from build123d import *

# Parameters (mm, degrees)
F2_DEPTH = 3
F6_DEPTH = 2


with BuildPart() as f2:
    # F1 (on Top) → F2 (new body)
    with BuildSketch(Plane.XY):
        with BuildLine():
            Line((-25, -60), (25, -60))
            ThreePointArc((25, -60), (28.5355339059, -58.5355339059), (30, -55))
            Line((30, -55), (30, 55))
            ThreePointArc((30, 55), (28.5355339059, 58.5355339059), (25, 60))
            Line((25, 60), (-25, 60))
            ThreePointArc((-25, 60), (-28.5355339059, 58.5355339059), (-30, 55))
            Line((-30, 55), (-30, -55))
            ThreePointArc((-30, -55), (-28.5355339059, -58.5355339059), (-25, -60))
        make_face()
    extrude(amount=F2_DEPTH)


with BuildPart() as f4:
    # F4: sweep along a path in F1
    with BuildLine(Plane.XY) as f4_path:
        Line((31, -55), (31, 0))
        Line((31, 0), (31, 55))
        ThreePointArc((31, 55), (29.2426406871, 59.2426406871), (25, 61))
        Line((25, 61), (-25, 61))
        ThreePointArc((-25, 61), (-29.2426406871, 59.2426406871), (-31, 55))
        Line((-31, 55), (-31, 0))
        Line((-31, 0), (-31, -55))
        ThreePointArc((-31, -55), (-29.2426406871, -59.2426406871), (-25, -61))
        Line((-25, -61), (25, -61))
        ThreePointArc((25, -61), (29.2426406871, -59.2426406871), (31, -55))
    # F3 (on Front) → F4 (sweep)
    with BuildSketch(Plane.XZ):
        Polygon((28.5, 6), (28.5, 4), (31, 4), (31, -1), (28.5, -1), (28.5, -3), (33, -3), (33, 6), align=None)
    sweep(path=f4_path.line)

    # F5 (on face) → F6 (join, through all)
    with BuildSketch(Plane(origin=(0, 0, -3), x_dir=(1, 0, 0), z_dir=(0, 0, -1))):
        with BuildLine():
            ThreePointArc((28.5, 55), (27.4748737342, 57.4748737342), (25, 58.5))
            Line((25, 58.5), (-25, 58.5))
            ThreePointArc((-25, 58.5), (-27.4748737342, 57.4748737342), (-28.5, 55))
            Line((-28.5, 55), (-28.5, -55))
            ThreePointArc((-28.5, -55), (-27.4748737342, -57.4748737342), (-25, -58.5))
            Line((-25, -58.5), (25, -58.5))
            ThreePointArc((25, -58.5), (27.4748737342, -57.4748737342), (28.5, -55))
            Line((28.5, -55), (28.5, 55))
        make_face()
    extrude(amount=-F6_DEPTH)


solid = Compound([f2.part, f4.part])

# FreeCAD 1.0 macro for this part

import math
import FreeCAD as App
import Part
import Sketcher
from FreeCAD import Vector
Q = App.Units.Quantity

doc = App.newDocument("Part")
body = doc.addObject("PartDesign::Body", "Body")

# Sketch on XY plane
sketch1 = doc.addObject("Sketcher::SketchObject", "Sketch")
body.addObject(sketch1)
sketch1.AttachmentSupport = (doc.XY_Plane, [""])
sketch1.MapMode = "FlatFace"
sketch1.addGeometry([
    Part.LineSegment(Vector(-25, -60, 0), Vector(25, -60, 0)),  # 0
    Part.ArcOfCircle(Part.Circle(Vector(25, -55, 0), Vector(0, 0, 1), 5), math.radians(-90), math.radians(0)),  # 1
    Part.LineSegment(Vector(30, -55, 0), Vector(30, 55, 0)),  # 2
    Part.ArcOfCircle(Part.Circle(Vector(25, 55, 0), Vector(0, 0, 1), 5), math.radians(0), math.radians(90)),  # 3
    Part.LineSegment(Vector(25, 60, 0), Vector(-25, 60, 0)),  # 4
    Part.ArcOfCircle(Part.Circle(Vector(-25, 55, 0), Vector(0, 0, 1), 5), math.radians(90), math.radians(180)),  # 5
    Part.LineSegment(Vector(-30, 55, 0), Vector(-30, -55, 0)),  # 6
    Part.ArcOfCircle(Part.Circle(Vector(-25, -55, 0), Vector(0, 0, 1), 5), math.radians(180), math.radians(270)),  # 7
], False)
sketch1.addConstraint([
    Sketcher.Constraint("Tangent", 0, 2, 1, 1),
    Sketcher.Constraint("Tangent", 1, 2, 2, 1),
    Sketcher.Constraint("Tangent", 2, 2, 3, 1),
    Sketcher.Constraint("Tangent", 3, 2, 4, 1),
    Sketcher.Constraint("Tangent", 4, 2, 5, 1),
    Sketcher.Constraint("Tangent", 5, 2, 6, 1),
    Sketcher.Constraint("Tangent", 6, 2, 7, 1),
    Sketcher.Constraint("Tangent", 7, 2, 0, 1),
    Sketcher.Constraint("Horizontal", 0),
    Sketcher.Constraint("Vertical", 2),
    Sketcher.Constraint("Horizontal", 4),
    Sketcher.Constraint("Vertical", 6),
    Sketcher.Constraint("Equal", 1, 3),
    Sketcher.Constraint("Equal", 3, 5),
    Sketcher.Constraint("Equal", 5, 7),
    Sketcher.Constraint("Symmetric", 1, 3, 5, 3, -1, 1),
    Sketcher.Constraint("Radius", 1, Q("5 mm")),
    Sketcher.Constraint("DistanceX", 0, 1, 0, 2, Q("50 mm")),
    Sketcher.Constraint("DistanceY", 2, 1, 2, 2, Q("110 mm")),
])
pad1 = doc.addObject("PartDesign::Pad", "Pad")
body.addObject(pad1)
pad1.Profile = sketch1
pad1.Length = 3
body2 = doc.addObject("PartDesign::Body", "Body001")

# Sketch on XZ plane
sketch2 = doc.addObject("Sketcher::SketchObject", "Sketch001")
body2.addObject(sketch2)
sketch2.AttachmentSupport = (doc.getObject("XZ_Plane001"), [""])
sketch2.MapMode = "FlatFace"
sketch2.addGeometry([
    Part.LineSegment(Vector(28.5, 6, 0), Vector(28.5, 4, 0)),  # 0
    Part.LineSegment(Vector(28.5, 4, 0), Vector(31, 4, 0)),  # 1
    Part.LineSegment(Vector(31, 4, 0), Vector(31, -1, 0)),  # 2
    Part.LineSegment(Vector(31, -1, 0), Vector(28.5, -1, 0)),  # 3
    Part.LineSegment(Vector(28.5, -1, 0), Vector(28.5, -3, 0)),  # 4
    Part.LineSegment(Vector(28.5, -3, 0), Vector(33, -3, 0)),  # 5
    Part.LineSegment(Vector(33, -3, 0), Vector(33, 6, 0)),  # 6
    Part.LineSegment(Vector(33, 6, 0), Vector(28.5, 6, 0)),  # 7
], False)
sketch2.addConstraint([
    Sketcher.Constraint("Coincident", 0, 2, 1, 1),
    Sketcher.Constraint("Coincident", 1, 2, 2, 1),
    Sketcher.Constraint("Coincident", 2, 2, 3, 1),
    Sketcher.Constraint("Coincident", 3, 2, 4, 1),
    Sketcher.Constraint("Coincident", 4, 2, 5, 1),
    Sketcher.Constraint("Coincident", 5, 2, 6, 1),
    Sketcher.Constraint("Coincident", 6, 2, 7, 1),
    Sketcher.Constraint("Coincident", 7, 2, 0, 1),
    Sketcher.Constraint("Vertical", 0),
    Sketcher.Constraint("Horizontal", 1),
    Sketcher.Constraint("Vertical", 2),
    Sketcher.Constraint("Horizontal", 3),
    Sketcher.Constraint("Vertical", 4),
    Sketcher.Constraint("Horizontal", 5),
    Sketcher.Constraint("Vertical", 6),
    Sketcher.Constraint("Horizontal", 7),
    Sketcher.Constraint("Vertical", 0, 2, 3, 2),
    Sketcher.Constraint("Equal", 0, 4),
    Sketcher.Constraint("DistanceY", 0, 2, 0, 1, Q("2 mm")),
    Sketcher.Constraint("DistanceY", 2, 2, 2, 1, Q("5 mm")),
    Sketcher.Constraint("DistanceX", 1, 1, 1, 2, Q("2.5 mm")),
    Sketcher.Constraint("DistanceX", 5, 1, 5, 2, Q("4.5 mm")),
    Sketcher.Constraint("DistanceY", -1, 1, 0, 2, Q("4 mm")),
    Sketcher.Constraint("DistanceX", -1, 1, 1, 2, Q("31 mm")),
])

# Sketch on XY plane
sketch3 = doc.addObject("Sketcher::SketchObject", "Sketch002")
body2.addObject(sketch3)
sketch3.AttachmentSupport = (doc.getObject("XY_Plane001"), [""])
sketch3.MapMode = "FlatFace"
sketch3.addGeometry([
    Part.LineSegment(Vector(31, -55, 0), Vector(31, 55, 0)),  # 0
    Part.ArcOfCircle(Part.Circle(Vector(25, 55, 0), Vector(0, 0, 1), 6), math.radians(0), math.radians(90)),  # 1
    Part.LineSegment(Vector(25, 61, 0), Vector(-25, 61, 0)),  # 2
    Part.ArcOfCircle(Part.Circle(Vector(-25, 55, 0), Vector(0, 0, 1), 6), math.radians(90), math.radians(180)),  # 3
    Part.LineSegment(Vector(-31, 55, 0), Vector(-31, -55, 0)),  # 4
    Part.ArcOfCircle(Part.Circle(Vector(-25, -55, 0), Vector(0, 0, 1), 6), math.radians(180), math.radians(270)),  # 5
    Part.LineSegment(Vector(-25, -61, 0), Vector(25, -61, 0)),  # 6
    Part.ArcOfCircle(Part.Circle(Vector(25, -55, 0), Vector(0, 0, 1), 6), math.radians(-90), math.radians(0)),  # 7
], False)
sketch3.addConstraint([
    Sketcher.Constraint("Tangent", 0, 2, 1, 1),
    Sketcher.Constraint("Tangent", 1, 2, 2, 1),
    Sketcher.Constraint("Tangent", 2, 2, 3, 1),
    Sketcher.Constraint("Tangent", 3, 2, 4, 1),
    Sketcher.Constraint("Tangent", 4, 2, 5, 1),
    Sketcher.Constraint("Tangent", 5, 2, 6, 1),
    Sketcher.Constraint("Tangent", 6, 2, 7, 1),
    Sketcher.Constraint("Tangent", 7, 2, 0, 1),
    Sketcher.Constraint("Vertical", 0),
    Sketcher.Constraint("Horizontal", 2),
    Sketcher.Constraint("Vertical", 4),
    Sketcher.Constraint("Horizontal", 6),
    Sketcher.Constraint("Equal", 1, 3),
    Sketcher.Constraint("Equal", 3, 5),
    Sketcher.Constraint("Equal", 5, 7),
    Sketcher.Constraint("Symmetric", 1, 3, 5, 3, -1, 1),
    Sketcher.Constraint("Radius", 1, Q("6 mm")),
    Sketcher.Constraint("DistanceX", 2, 2, 2, 1, Q("50 mm")),
    Sketcher.Constraint("DistanceY", 0, 1, 0, 2, Q("110 mm")),
])
doc.recompute()

additivepipe = doc.addObject("PartDesign::AdditivePipe", "AdditivePipe")
body2.addObject(additivepipe)
additivepipe.Profile = sketch2
additivepipe.Spine = (sketch3, ["Edge1", "Edge2", "Edge3", "Edge4", "Edge5", "Edge6", "Edge7", "Edge8"])

# Sketch on XY plane
sketch4 = doc.addObject("Sketcher::SketchObject", "Sketch003")
body2.addObject(sketch4)
sketch4.AttachmentSupport = (doc.getObject("XY_Plane001"), [""])
sketch4.MapMode = "FlatFace"
sketch4.AttachmentOffset = App.Placement(Vector(0, 0, -3), App.Rotation())
sketch4.addGeometry([
    Part.ArcOfCircle(Part.Circle(Vector(25, -55, 0), Vector(0, 0, 1), 3.5), math.radians(-90), math.radians(0)),  # 0
    Part.LineSegment(Vector(25, -58.5, 0), Vector(-25, -58.5, 0)),  # 1
    Part.ArcOfCircle(Part.Circle(Vector(-25, -55, 0), Vector(0, 0, 1), 3.5), math.radians(180), math.radians(270)),  # 2
    Part.LineSegment(Vector(-28.5, -55, 0), Vector(-28.5, 55, 0)),  # 3
    Part.ArcOfCircle(Part.Circle(Vector(-25, 55, 0), Vector(0, 0, 1), 3.5), math.radians(90), math.radians(180)),  # 4
    Part.LineSegment(Vector(-25, 58.5, 0), Vector(25, 58.5, 0)),  # 5
    Part.ArcOfCircle(Part.Circle(Vector(25, 55, 0), Vector(0, 0, 1), 3.5), math.radians(0), math.radians(90)),  # 6
    Part.LineSegment(Vector(28.5, 55, 0), Vector(28.5, -55, 0)),  # 7
], False)
sketch4.addConstraint([
    Sketcher.Constraint("Tangent", 0, 1, 1, 1),
    Sketcher.Constraint("Tangent", 1, 2, 2, 2),
    Sketcher.Constraint("Tangent", 2, 1, 3, 1),
    Sketcher.Constraint("Tangent", 3, 2, 4, 2),
    Sketcher.Constraint("Tangent", 4, 1, 5, 1),
    Sketcher.Constraint("Tangent", 5, 2, 6, 2),
    Sketcher.Constraint("Tangent", 6, 1, 7, 1),
    Sketcher.Constraint("Tangent", 7, 2, 0, 2),
    Sketcher.Constraint("Horizontal", 1),
    Sketcher.Constraint("Vertical", 3),
    Sketcher.Constraint("Horizontal", 5),
    Sketcher.Constraint("Vertical", 7),
    Sketcher.Constraint("Equal", 0, 2),
    Sketcher.Constraint("Equal", 2, 4),
    Sketcher.Constraint("Equal", 4, 6),
    Sketcher.Constraint("Symmetric", 0, 3, 4, 3, -1, 1),
    Sketcher.Constraint("Radius", 0, Q("3.5 mm")),
    Sketcher.Constraint("DistanceX", 1, 2, 1, 1, Q("50 mm")),
    Sketcher.Constraint("DistanceY", 3, 1, 3, 2, Q("110 mm")),
])
pad2 = doc.addObject("PartDesign::Pad", "Pad001")
body2.addObject(pad2)
pad2.Profile = sketch4
pad2.Length = 2

doc.recompute()
